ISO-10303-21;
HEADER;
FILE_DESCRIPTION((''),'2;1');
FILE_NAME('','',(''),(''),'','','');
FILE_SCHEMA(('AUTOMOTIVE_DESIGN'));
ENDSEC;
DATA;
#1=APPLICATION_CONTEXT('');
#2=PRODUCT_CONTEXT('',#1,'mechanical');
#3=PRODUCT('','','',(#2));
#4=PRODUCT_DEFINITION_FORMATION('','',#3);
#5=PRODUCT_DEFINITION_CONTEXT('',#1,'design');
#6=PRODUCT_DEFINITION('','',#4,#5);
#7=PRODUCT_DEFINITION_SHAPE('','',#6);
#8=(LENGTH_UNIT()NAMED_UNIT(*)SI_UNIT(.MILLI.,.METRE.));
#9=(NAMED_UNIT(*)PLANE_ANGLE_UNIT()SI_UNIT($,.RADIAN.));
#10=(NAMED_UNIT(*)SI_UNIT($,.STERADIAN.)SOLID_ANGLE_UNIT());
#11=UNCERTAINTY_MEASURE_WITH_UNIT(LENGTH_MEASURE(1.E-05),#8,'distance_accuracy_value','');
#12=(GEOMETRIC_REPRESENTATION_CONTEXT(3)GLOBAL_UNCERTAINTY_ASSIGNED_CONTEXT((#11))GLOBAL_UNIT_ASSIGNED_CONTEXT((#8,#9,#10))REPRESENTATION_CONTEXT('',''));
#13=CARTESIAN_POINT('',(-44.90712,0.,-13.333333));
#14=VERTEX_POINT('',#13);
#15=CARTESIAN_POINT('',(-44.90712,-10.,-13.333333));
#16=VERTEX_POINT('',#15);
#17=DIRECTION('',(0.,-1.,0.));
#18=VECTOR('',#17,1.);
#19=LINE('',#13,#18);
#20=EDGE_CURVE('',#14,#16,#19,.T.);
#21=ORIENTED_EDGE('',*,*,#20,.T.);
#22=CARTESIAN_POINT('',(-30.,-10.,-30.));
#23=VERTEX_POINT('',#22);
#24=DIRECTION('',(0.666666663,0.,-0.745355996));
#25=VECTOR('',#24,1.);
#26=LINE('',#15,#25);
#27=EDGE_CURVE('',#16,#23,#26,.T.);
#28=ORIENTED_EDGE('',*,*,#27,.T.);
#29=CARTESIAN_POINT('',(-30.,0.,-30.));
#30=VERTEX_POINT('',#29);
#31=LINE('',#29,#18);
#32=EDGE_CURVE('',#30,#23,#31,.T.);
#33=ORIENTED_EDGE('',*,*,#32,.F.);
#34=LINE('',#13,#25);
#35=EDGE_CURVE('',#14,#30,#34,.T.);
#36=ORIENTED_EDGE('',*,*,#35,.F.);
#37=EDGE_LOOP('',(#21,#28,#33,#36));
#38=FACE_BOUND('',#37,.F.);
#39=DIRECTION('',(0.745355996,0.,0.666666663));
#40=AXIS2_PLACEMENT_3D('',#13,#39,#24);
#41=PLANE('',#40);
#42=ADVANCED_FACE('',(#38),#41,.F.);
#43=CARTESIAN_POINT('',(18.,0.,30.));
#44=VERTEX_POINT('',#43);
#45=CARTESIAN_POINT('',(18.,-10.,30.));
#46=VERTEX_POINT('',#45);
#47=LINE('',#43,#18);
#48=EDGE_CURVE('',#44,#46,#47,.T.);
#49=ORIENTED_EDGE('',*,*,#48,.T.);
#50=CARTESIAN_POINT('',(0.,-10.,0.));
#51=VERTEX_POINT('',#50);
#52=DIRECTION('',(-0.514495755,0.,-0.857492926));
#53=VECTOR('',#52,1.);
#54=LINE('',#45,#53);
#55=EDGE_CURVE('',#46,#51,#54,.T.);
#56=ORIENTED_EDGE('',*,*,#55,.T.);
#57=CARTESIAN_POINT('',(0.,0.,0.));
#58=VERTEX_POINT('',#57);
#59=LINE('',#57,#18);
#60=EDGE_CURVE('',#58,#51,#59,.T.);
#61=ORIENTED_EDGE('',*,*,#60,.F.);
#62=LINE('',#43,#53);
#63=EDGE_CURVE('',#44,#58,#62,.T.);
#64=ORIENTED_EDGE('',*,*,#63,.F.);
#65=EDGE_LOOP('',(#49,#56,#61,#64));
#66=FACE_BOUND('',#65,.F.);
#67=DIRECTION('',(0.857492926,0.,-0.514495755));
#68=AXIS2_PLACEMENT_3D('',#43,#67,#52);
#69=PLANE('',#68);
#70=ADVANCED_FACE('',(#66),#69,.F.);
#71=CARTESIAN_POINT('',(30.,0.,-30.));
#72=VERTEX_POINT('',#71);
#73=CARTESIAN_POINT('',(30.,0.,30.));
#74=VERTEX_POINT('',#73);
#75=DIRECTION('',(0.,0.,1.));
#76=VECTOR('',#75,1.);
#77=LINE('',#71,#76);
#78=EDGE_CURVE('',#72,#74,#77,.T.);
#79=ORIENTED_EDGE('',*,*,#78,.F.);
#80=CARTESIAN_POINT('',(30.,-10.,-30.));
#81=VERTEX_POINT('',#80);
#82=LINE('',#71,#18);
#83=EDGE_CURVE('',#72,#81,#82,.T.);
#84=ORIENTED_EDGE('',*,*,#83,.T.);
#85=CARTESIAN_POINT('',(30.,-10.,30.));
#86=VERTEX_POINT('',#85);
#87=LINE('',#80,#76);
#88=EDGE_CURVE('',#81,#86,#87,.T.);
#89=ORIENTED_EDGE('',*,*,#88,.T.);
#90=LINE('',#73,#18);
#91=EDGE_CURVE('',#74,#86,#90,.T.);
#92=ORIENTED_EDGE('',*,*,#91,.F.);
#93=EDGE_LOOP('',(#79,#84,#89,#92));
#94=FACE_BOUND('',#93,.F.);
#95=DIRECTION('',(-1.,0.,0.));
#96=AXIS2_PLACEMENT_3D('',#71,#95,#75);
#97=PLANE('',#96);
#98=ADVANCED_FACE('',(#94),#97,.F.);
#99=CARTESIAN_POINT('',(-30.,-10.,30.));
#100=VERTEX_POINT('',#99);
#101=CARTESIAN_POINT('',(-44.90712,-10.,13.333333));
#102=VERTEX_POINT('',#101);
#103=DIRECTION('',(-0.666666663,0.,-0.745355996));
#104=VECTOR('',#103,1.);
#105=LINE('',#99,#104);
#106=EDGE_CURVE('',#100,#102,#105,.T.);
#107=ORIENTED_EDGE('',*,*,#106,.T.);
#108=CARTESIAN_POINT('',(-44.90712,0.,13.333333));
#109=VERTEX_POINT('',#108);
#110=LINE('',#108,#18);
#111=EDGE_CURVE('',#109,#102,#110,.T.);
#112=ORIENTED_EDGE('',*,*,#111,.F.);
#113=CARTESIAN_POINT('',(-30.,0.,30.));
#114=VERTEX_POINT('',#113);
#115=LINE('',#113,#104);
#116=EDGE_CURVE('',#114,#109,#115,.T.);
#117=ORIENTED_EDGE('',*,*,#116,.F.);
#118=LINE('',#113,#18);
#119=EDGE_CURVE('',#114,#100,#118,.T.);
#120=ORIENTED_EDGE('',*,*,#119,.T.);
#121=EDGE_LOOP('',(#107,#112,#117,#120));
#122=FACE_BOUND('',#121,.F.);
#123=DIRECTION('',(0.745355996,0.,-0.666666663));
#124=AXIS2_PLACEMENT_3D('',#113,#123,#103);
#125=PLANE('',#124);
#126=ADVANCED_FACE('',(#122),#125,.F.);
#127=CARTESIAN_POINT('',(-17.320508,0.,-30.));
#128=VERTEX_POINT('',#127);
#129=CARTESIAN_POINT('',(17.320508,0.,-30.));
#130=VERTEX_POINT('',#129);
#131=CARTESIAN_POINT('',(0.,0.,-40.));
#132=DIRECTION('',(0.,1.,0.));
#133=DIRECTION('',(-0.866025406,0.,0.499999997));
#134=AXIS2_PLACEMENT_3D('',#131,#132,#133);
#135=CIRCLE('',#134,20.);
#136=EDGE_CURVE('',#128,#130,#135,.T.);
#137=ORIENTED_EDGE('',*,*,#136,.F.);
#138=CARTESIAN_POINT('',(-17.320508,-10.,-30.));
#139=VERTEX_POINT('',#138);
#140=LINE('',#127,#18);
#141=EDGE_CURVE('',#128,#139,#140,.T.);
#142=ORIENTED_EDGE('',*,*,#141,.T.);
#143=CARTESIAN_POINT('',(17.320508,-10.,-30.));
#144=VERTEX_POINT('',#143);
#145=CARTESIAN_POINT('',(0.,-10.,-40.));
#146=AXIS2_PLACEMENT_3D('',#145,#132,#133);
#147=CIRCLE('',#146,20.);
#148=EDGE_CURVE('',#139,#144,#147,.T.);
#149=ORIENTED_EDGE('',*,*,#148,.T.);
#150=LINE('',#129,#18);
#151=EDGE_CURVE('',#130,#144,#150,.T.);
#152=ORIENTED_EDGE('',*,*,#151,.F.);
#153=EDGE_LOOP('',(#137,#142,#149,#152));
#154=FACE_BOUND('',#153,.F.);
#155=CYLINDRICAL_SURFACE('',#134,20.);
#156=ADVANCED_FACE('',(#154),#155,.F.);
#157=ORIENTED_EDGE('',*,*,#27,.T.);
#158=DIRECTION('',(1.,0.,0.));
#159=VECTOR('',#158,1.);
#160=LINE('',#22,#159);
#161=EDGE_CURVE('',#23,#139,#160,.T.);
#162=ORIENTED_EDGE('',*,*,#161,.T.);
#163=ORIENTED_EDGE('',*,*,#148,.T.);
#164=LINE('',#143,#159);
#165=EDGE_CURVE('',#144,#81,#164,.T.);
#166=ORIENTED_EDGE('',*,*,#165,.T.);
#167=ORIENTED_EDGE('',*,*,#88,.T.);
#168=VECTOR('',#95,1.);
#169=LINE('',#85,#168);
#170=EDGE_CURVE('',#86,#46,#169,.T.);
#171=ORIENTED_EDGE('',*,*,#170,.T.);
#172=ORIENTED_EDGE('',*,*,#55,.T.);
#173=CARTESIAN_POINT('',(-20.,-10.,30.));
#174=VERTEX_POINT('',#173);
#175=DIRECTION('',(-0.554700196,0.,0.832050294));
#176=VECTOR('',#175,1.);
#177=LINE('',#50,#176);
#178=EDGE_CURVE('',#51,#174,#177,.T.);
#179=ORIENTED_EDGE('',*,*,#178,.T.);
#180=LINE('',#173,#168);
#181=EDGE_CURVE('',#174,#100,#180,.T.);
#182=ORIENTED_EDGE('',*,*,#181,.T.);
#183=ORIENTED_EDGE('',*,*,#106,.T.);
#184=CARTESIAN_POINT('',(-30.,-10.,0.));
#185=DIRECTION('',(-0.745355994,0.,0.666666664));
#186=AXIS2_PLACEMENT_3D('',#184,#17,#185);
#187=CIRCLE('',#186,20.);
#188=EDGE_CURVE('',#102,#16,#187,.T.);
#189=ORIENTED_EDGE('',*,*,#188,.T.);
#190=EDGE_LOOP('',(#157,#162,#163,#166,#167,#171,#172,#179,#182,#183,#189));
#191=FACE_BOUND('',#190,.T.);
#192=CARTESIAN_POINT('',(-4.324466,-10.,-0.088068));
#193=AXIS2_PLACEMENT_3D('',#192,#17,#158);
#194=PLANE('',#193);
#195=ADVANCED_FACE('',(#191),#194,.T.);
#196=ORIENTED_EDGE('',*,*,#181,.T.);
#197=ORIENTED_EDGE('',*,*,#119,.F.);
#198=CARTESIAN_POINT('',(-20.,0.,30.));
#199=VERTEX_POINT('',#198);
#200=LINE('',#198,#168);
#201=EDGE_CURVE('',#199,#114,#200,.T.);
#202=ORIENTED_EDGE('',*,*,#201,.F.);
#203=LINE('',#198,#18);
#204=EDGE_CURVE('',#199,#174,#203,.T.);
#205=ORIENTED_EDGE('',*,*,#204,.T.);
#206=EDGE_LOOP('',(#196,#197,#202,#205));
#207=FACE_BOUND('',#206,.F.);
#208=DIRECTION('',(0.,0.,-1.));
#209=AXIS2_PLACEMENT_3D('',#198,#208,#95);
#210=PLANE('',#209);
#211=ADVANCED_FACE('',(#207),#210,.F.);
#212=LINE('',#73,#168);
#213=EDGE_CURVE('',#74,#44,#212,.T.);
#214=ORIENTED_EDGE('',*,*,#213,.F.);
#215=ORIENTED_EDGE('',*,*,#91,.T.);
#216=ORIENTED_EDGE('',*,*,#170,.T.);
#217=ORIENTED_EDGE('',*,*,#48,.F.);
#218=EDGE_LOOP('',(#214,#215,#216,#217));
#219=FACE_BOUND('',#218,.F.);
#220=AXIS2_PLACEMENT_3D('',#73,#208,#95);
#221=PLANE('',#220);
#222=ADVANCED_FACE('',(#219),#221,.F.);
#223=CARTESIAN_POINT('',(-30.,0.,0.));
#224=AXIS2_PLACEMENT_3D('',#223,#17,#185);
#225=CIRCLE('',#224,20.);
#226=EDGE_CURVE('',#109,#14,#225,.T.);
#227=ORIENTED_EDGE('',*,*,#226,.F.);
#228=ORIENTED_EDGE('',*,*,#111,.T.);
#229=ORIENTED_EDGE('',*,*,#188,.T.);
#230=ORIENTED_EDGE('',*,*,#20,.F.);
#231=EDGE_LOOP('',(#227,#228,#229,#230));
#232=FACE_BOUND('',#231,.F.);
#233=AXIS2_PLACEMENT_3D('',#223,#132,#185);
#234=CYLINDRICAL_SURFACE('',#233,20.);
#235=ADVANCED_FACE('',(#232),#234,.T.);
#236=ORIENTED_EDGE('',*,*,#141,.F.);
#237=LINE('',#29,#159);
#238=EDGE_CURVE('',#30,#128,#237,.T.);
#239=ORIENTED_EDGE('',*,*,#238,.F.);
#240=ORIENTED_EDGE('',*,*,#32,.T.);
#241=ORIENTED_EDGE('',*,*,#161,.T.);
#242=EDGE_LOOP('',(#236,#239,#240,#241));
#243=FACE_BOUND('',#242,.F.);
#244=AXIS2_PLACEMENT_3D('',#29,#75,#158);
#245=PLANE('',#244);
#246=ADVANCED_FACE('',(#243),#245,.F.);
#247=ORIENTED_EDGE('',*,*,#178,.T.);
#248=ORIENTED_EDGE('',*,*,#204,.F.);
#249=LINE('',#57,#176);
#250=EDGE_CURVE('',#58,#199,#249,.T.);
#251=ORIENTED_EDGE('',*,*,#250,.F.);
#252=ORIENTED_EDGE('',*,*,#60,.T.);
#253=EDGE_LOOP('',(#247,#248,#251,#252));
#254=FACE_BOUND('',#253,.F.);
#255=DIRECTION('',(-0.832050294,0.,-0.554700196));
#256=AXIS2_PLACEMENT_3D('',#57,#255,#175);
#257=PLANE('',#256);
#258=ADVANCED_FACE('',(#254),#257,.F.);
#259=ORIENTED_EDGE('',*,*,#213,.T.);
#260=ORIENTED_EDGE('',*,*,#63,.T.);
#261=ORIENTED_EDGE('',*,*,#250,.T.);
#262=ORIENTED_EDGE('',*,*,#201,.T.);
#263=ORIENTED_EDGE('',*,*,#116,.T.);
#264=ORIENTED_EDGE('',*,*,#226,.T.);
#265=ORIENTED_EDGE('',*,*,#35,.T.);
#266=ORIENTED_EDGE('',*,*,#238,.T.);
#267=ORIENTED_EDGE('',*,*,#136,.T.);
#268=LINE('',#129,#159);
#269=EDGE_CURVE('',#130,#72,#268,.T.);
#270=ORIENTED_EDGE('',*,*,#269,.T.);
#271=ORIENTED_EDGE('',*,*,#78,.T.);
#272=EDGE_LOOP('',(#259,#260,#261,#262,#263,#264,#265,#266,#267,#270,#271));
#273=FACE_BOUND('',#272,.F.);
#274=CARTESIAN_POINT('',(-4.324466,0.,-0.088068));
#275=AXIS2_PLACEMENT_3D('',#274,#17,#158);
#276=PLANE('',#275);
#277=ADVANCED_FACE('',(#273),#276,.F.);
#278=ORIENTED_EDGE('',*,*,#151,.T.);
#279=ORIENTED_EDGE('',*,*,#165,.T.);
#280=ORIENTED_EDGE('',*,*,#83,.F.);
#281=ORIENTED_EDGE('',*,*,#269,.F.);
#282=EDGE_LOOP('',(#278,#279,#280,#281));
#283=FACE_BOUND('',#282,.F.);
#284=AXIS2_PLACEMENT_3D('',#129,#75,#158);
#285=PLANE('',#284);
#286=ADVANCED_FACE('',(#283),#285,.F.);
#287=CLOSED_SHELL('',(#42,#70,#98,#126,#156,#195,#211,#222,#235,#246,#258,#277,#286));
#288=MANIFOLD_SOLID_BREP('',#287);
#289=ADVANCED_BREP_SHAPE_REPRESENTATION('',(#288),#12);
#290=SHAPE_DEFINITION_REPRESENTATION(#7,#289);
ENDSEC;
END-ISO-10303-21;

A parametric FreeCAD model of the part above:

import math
import FreeCAD as App
import Part
import Sketcher
from FreeCAD import Vector

doc = App.newDocument("Part")
body = doc.addObject("PartDesign::Body", "Body")

# Sketch on XZ plane
sketch1 = body.newObject("Sketcher::SketchObject", "Sketch")
sketch1.AttachmentSupport = (doc.getObject("XZ_Plane"), [""])
sketch1.MapMode = "FlatFace"
sketch1.addGeometry([
    Part.LineSegment(Vector(30, 30, 0), Vector(18, 30, 0)),  # 0
    Part.LineSegment(Vector(18, 30, 0), Vector(0, 0, 0)),  # 1
    Part.LineSegment(Vector(0, 0, 0), Vector(-20, 30, 0)),  # 2
    Part.LineSegment(Vector(-20, 30, 0), Vector(-30, 30, 0)),  # 3
    Part.LineSegment(Vector(-30, 30, 0), Vector(-45, 13, 0)),  # 4
    Part.ArcOfCircle(Part.Circle(Vector(-30, 0, 0), Vector(0, 0, 1), 20), math.radians(138), math.radians(222)),  # 5
    Part.LineSegment(Vector(-45, -13, 0), Vector(-30, -30, 0)),  # 6
    Part.LineSegment(Vector(-30, -30, 0), Vector(-17, -30, 0)),  # 7
    Part.ArcOfCircle(Part.Circle(Vector(0, -40, 0), Vector(0, 0, 1), 20), math.radians(30), math.radians(150)),  # 8
    Part.LineSegment(Vector(17, -30, 0), Vector(30, -30, 0)),  # 9
    Part.LineSegment(Vector(30, -30, 0), Vector(30, 30, 0)),  # 10
], False)
sketch1.addConstraint([
    Sketcher.Constraint("Coincident", 0, 2, 1, 1),
    Sketcher.Constraint("Coincident", 1, 2, 2, 1),
    Sketcher.Constraint("Coincident", 2, 2, 3, 1),
    Sketcher.Constraint("Coincident", 3, 2, 4, 1),
    Sketcher.Constraint("Tangent", 4, 2, 5, 1),
    Sketcher.Constraint("Tangent", 5, 2, 6, 1),
    Sketcher.Constraint("Coincident", 6, 2, 7, 1),
    Sketcher.Constraint("Coincident", 7, 2, 8, 2),
    Sketcher.Constraint("Coincident", 8, 1, 9, 1),
    Sketcher.Constraint("Coincident", 9, 2, 10, 1),
    Sketcher.Constraint("Coincident", 10, 2, 0, 1),
    Sketcher.Constraint("Horizontal", 0),
    Sketcher.Constraint("Horizontal", 3),
    Sketcher.Constraint("Horizontal", 7),
    Sketcher.Constraint("Horizontal", 9),
    Sketcher.Constraint("Vertical", 10),
    Sketcher.Constraint("Coincident", 1, 2, -1, 1),
    Sketcher.Constraint("Equal", 5, 8),
    Sketcher.Constraint("Symmetric", 3, 2, 9, 2, -1, 1),
    Sketcher.Constraint("Symmetric", 6, 2, 10, 2, -1, 1),
    Sketcher.Constraint("Symmetric", 7, 2, 8, 1, -2),
    Sketcher.Constraint("PointOnObject", 5, 3, -1),
    Sketcher.Constraint("Vertical", 5, 3, 3, 2),
    Sketcher.Constraint("Radius", 5, 20.0),
    Sketcher.Constraint("DistanceX", 0, 2, 0, 1, 12.0),
    Sketcher.Constraint("DistanceX", 3, 2, 3, 1, 10.0),
    Sketcher.Constraint("DistanceY", 10, 1, 10, 2, 60.0),
    Sketcher.Constraint("DistanceX", 5, 3, -1, 1, 30.0),
    Sketcher.Constraint("DistanceY", 8, 3, -1, 1, 40.0),
])
pad1 = body.newObject("PartDesign::Pad", "Pad")
pad1.Profile = sketch1
pad1.Length = 10

doc.recompute()
